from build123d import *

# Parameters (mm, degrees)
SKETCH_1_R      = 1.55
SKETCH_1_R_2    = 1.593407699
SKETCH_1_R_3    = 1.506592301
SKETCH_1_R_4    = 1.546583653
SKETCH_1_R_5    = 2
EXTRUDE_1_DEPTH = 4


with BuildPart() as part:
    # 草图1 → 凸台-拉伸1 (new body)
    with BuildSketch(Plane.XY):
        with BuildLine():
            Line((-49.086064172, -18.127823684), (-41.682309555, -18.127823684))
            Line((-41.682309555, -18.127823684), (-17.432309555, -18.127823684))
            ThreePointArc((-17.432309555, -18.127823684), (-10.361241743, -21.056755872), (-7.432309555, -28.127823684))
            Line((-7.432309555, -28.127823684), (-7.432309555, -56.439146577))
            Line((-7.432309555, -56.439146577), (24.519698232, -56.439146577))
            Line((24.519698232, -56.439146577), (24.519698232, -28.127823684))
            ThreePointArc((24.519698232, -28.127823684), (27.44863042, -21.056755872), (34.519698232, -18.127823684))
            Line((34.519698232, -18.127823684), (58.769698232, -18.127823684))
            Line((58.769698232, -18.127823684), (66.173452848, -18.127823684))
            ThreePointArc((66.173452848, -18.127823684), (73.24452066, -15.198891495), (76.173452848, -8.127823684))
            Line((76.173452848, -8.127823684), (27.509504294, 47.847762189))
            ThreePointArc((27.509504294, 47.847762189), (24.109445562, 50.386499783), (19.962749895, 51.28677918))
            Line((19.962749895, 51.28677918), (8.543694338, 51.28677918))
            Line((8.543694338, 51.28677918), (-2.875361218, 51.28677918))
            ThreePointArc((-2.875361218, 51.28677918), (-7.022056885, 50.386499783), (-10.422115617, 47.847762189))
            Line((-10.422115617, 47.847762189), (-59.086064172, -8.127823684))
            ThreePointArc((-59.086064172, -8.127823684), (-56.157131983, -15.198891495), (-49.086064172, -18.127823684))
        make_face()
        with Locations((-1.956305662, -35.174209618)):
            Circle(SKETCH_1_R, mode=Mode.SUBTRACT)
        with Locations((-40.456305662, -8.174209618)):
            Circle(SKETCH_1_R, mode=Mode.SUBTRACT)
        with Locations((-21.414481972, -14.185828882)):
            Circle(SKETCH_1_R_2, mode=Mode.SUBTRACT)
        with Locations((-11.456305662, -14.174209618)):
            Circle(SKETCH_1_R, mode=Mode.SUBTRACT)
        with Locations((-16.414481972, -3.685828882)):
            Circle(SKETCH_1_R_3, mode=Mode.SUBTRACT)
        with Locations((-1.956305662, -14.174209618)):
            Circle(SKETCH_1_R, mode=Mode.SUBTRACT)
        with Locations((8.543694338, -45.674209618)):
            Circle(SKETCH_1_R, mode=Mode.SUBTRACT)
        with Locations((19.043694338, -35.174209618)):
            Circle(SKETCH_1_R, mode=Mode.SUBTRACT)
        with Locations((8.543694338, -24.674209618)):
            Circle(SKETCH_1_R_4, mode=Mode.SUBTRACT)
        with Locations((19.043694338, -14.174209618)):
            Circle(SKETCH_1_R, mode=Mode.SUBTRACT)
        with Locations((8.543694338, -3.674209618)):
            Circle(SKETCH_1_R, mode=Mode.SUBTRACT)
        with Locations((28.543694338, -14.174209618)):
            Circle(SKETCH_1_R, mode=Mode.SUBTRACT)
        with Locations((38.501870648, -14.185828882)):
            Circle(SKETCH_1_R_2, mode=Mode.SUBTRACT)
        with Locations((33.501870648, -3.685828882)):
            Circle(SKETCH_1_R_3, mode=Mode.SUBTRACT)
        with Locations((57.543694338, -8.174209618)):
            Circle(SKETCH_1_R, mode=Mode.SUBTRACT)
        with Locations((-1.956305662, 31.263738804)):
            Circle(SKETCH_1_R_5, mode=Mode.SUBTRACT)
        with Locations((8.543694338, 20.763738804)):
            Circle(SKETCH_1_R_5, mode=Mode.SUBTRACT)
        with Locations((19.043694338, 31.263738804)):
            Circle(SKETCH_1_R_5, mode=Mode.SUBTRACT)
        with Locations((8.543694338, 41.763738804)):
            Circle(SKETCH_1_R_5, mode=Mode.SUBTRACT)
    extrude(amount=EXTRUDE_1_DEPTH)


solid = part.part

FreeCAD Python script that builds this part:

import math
import FreeCAD as App
import Part
import Sketcher

V = App.Vector

doc = App.newDocument("Part")
body = doc.addObject("PartDesign::Body", "Body")

sketch1 = body.newObject("Sketcher::SketchObject", "Sketch")
sketch1.AttachmentSupport = (doc.getObject("XY_Plane"), [""])
sketch1.MapMode = "FlatFace"
sketch1.addGeometry(Part.LineSegment(V(-49.1, -18.1, 0), V(-17.4, -18.1, 0)), False)
sketch1.addGeometry(Part.ArcOfCircle(Part.Circle(V(-17.4, -28.1, 0), V(0, 0, 1), 10), math.radians(0), math.radians(90)), False)
sketch1.addGeometry(Part.LineSegment(V(-7.4, -28.1, 0), V(-7.4, -56.4, 0)), False)
sketch1.addGeometry(Part.LineSegment(V(-7.4, -56.4, 0), V(24.5, -56.4, 0)), False)
sketch1.addGeometry(Part.LineSegment(V(24.5, -56.4, 0), V(24.5, -28.1, 0)), False)
sketch1.addGeometry(Part.ArcOfCircle(Part.Circle(V(34.5, -28.1, 0), V(0, 0, 1), 10), math.radians(90), math.radians(180)), False)
sketch1.addGeometry(Part.LineSegment(V(34.5, -18.1, 0), V(66.2, -18.1, 0)), False)
sketch1.addGeometry(Part.ArcOfCircle(Part.Circle(V(66.2, -8.1, 0), V(0, 0, 1), 10), math.radians(-90), math.radians(0)), False)
sketch1.addGeometry(Part.LineSegment(V(76.2, -8.1, 0), V(27.5, 47.8, 0)), False)
sketch1.addGeometry(Part.ArcOfCircle(Part.Circle(V(20, 41.3, 0), V(0, 0, 1), 10), math.radians(41), math.radians(90)), False)
sketch1.addGeometry(Part.LineSegment(V(20, 51.3, 0), V(-2.9, 51.3, 0)), False)
sketch1.addGeometry(Part.ArcOfCircle(Part.Circle(V(-2.9, 41.3, 0), V(0, 0, 1), 10), math.radians(90), math.radians(139)), False)
sketch1.addGeometry(Part.LineSegment(V(-10.4, 47.8, 0), V(-59.1, -8.1, 0)), False)
sketch1.addGeometry(Part.ArcOfCircle(Part.Circle(V(-49.1, -8.1, 0), V(0, 0, 1), 10), math.radians(-180), math.radians(-90)), False)
sketch1.addGeometry(Part.Circle(V(-2, -35.2, 0), V(0, 0, 1), 1.6), False)
sketch1.addGeometry(Part.Circle(V(-21.4, -14.2, 0), V(0, 0, 1), 1.6), False)
sketch1.addGeometry(Part.Circle(V(-40.5, -8.2, 0), V(0, 0, 1), 1.6), False)
sketch1.addGeometry(Part.Circle(V(-11.5, -14.2, 0), V(0, 0, 1), 1.6), False)
sketch1.addGeometry(Part.Circle(V(-2, -14.2, 0), V(0, 0, 1), 1.6), False)
sketch1.addGeometry(Part.Circle(V(-16.4, -3.7, 0), V(0, 0, 1), 1.5), False)
sketch1.addGeometry(Part.Circle(V(8.5, -45.7, 0), V(0, 0, 1), 1.6), False)
sketch1.addGeometry(Part.Circle(V(19, -35.2, 0), V(0, 0, 1), 1.6), False)
sketch1.addGeometry(Part.Circle(V(8.5, -24.7, 0), V(0, 0, 1), 1.5), False)
sketch1.addGeometry(Part.Circle(V(19, -14.2, 0), V(0, 0, 1), 1.6), False)
sketch1.addGeometry(Part.Circle(V(28.5, -14.2, 0), V(0, 0, 1), 1.6), False)
sketch1.addGeometry(Part.Circle(V(8.5, -3.7, 0), V(0, 0, 1), 1.6), False)
sketch1.addGeometry(Part.Circle(V(33.5, -3.7, 0), V(0, 0, 1), 1.5), False)
sketch1.addGeometry(Part.Circle(V(38.5, -14.2, 0), V(0, 0, 1), 1.6), False)
sketch1.addGeometry(Part.Circle(V(57.5, -8.2, 0), V(0, 0, 1), 1.6), False)
sketch1.addGeometry(Part.Circle(V(-2, 31.3, 0), V(0, 0, 1), 2), False)
sketch1.addGeometry(Part.Circle(V(8.5, 20.8, 0), V(0, 0, 1), 2), False)
sketch1.addGeometry(Part.Circle(V(19, 31.3, 0), V(0, 0, 1), 2), False)
sketch1.addGeometry(Part.Circle(V(8.5, 41.8, 0), V(0, 0, 1), 2), False)
sketch1.addConstraint(Sketcher.Constraint("Tangent", 0, 2, 1, 2))
sketch1.addConstraint(Sketcher.Constraint("Tangent", 1, 1, 2, 1))
sketch1.addConstraint(Sketcher.Constraint("Coincident", 2, 2, 3, 1))
sketch1.addConstraint(Sketcher.Constraint("Coincident", 3, 2, 4, 1))
sketch1.addConstraint(Sketcher.Constraint("Tangent", 4, 2, 5, 2))
sketch1.addConstraint(Sketcher.Constraint("Tangent", 5, 1, 6, 1))
sketch1.addConstraint(Sketcher.Constraint("Tangent", 6, 2, 7, 1))
sketch1.addConstraint(Sketcher.Constraint("Coincident", 7, 2, 8, 1))
sketch1.addConstraint(Sketcher.Constraint("Tangent", 8, 2, 9, 1))
sketch1.addConstraint(Sketcher.Constraint("Tangent", 9, 2, 10, 1))
sketch1.addConstraint(Sketcher.Constraint("Tangent", 10, 2, 11, 1))
sketch1.addConstraint(Sketcher.Constraint("Tangent", 11, 2, 12, 1))
sketch1.addConstraint(Sketcher.Constraint("Coincident", 12, 2, 13, 1))
sketch1.addConstraint(Sketcher.Constraint("Tangent", 13, 2, 0, 1))
sketch1.addConstraint(Sketcher.Constraint("Horizontal", 0))
sketch1.addConstraint(Sketcher.Constraint("Vertical", 2))
sketch1.addConstraint(Sketcher.Constraint("Horizontal", 3))
sketch1.addConstraint(Sketcher.Constraint("Vertical", 4))
sketch1.addConstraint(Sketcher.Constraint("Horizontal", 6))
sketch1.addConstraint(Sketcher.Constraint("Horizontal", 10))
sketch1.addConstraint(Sketcher.Constraint("Equal", 1, 5))
sketch1.addConstraint(Sketcher.Constraint("Equal", 5, 7))
sketch1.addConstraint(Sketcher.Constraint("Equal", 7, 9))
sketch1.addConstraint(Sketcher.Constraint("Equal", 9, 11))
sketch1.addConstraint(Sketcher.Constraint("Equal", 11, 13))
sketch1.addConstraint(Sketcher.Constraint("Equal", 14, 16))
sketch1.addConstraint(Sketcher.Constraint("Equal", 16, 17))
sketch1.addConstraint(Sketcher.Constraint("Equal", 17, 18))
sketch1.addConstraint(Sketcher.Constraint("Equal", 18, 20))
sketch1.addConstraint(Sketcher.Constraint("Equal", 20, 21))
sketch1.addConstraint(Sketcher.Constraint("Equal", 21, 23))
sketch1.addConstraint(Sketcher.Constraint("Equal", 23, 24))
sketch1.addConstraint(Sketcher.Constraint("Equal", 24, 25))
sketch1.addConstraint(Sketcher.Constraint("Equal", 19, 26))
sketch1.addConstraint(Sketcher.Constraint("Equal", 15, 27))
sketch1.addConstraint(Sketcher.Constraint("Equal", 25, 28))
sketch1.addConstraint(Sketcher.Constraint("Equal", 29, 30))
sketch1.addConstraint(Sketcher.Constraint("Equal", 30, 31))
sketch1.addConstraint(Sketcher.Constraint("Equal", 31, 32))
sketch1.addConstraint(Sketcher.Constraint("Horizontal", 1, 3, 5, 3))
sketch1.addConstraint(Sketcher.Constraint("Horizontal", 17, 3, 18, 3))
sketch1.addConstraint(Sketcher.Constraint("Horizontal", 14, 3, 21, 3))
sketch1.addConstraint(Sketcher.Constraint("Horizontal", 18, 3, 23, 3))
sketch1.addConstraint(Sketcher.Constraint("Horizontal", 23, 3, 24, 3))
sketch1.addConstraint(Sketcher.Constraint("Horizontal", 19, 3, 26, 3))
sketch1.addConstraint(Sketcher.Constraint("Horizontal", 15, 3, 27, 3))
sketch1.addConstraint(Sketcher.Constraint("Horizontal", 16, 3, 28, 3))
sketch1.addConstraint(Sketcher.Constraint("Horizontal", 29, 3, 31, 3))
sketch1.addConstraint(Sketcher.Constraint("Horizontal", 13, 3, 7, 2))
sketch1.addConstraint(Sketcher.Constraint("Horizontal", 8, 2, 11, 2))
sketch1.addConstraint(Sketcher.Constraint("Horizontal", 7, 2, 12, 2))
sketch1.addConstraint(Sketcher.Constraint("Vertical", 14, 3, 18, 3))
sketch1.addConstraint(Sketcher.Constraint("Vertical", 20, 3, 22, 3))
sketch1.addConstraint(Sketcher.Constraint("Vertical", 21, 3, 23, 3))
sketch1.addConstraint(Sketcher.Constraint("Vertical", 22, 3, 25, 3))
sketch1.addConstraint(Sketcher.Constraint("Vertical", 18, 3, 29, 3))
sketch1.addConstraint(Sketcher.Constraint("Vertical", 25, 3, 30, 3))
sketch1.addConstraint(Sketcher.Constraint("Vertical", 23, 3, 31, 3))
sketch1.addConstraint(Sketcher.Constraint("Vertical", 30, 3, 32, 3))
sketch1.addConstraint(Sketcher.Constraint("Equal", 0, 6))
sketch1.addConstraint(Sketcher.Constraint("Diameter", 29, 4.0))
sketch1.addConstraint(Sketcher.Constraint("Radius", 1, 10.0))
sketch1.addConstraint(Sketcher.Constraint("Diameter", 14, 3.1))
sketch1.addConstraint(Sketcher.Constraint("DistanceY", 14, 3, 16, 3, 27.0))
sketch1.addConstraint(Sketcher.Constraint("DistanceY", 14, 3, 17, 3, 21.0))
sketch1.addConstraint(Sketcher.Constraint("DistanceX", 16, 3, 17, 3, 29.0))
sketch1.addConstraint(Sketcher.Constraint("DistanceX", 15, 3, 19, 3, 5.0))
sketch1.addConstraint(Sketcher.Constraint("DistanceX", 17, 3, 20, 3, 20.0))
sketch1.addConstraint(Sketcher.Constraint("DistanceX", 14, 3, 21, 3, 21.0))
sketch1.addConstraint(Sketcher.Constraint("DistanceY", 20, 3, 22, 3, 21.0))
sketch1.addConstraint(Sketcher.Constraint("DistanceX", 22, 3, 24, 3, 20.0))
sketch1.addConstraint(Sketcher.Constraint("DistanceY", 22, 3, 25, 3, 21.0))
sketch1.addConstraint(Sketcher.Constraint("DistanceX", 26, 3, 27, 3, 5.0))
sketch1.addConstraint(Sketcher.Constraint("DistanceX", 24, 3, 28, 3, 29.0))
sketch1.addConstraint(Sketcher.Constraint("DistanceY", 30, 3, 32, 3, 21.0))
sketch1.addConstraint(Sketcher.Constraint("DistanceX", 16, 3, 14, 3, 38.5))
sketch1.addConstraint(Sketcher.Constraint("DistanceY", 15, 3, 19, 3, 10.5))
sketch1.addConstraint(Sketcher.Constraint("DistanceY", 20, 3, 14, 3, 10.5))
sketch1.addConstraint(Sketcher.Constraint("DistanceY", 30, 3, 29, 3, 10.5))
sketch1.addConstraint(Sketcher.Constraint("Diameter", 15, 3.186815))
sketch1.addConstraint(Sketcher.Constraint("Diameter", 19, 3.013185))
sketch1.addConstraint(Sketcher.Constraint("Diameter", 22, 3.093167))
sketch1.addConstraint(Sketcher.Constraint("DistanceX", 10, 2, 10, 1, 22.838111))
sketch1.addConstraint(Sketcher.Constraint("DistanceX", -1, 1, 5, 3, 34.519698))
sketch1.addConstraint(Sketcher.Constraint("DistanceX", 0, 1, 0, 2, 31.653755))
sketch1.addConstraint(Sketcher.Constraint("DistanceX", 3, 1, 3, 2, 31.952008))
sketch1.addConstraint(Sketcher.Constraint("DistanceY", 2, 2, 2, 1, 28.311323))
sketch1.addConstraint(Sketcher.Constraint("DistanceY", -1, 1, 9, 3, 41.286779))
sketch1.addConstraint(Sketcher.Constraint("DistanceY", 14, 3, -1, 1, 35.17421))
sketch1.addConstraint(Sketcher.Constraint("DistanceX", 15, 3, -1, 1, 21.414482))
sketch1.addConstraint(Sketcher.Constraint("DistanceY", 15, 3, -1, 1, 14.185829))
sketch1.addConstraint(Sketcher.Constraint("DistanceX", -1, 1, 26, 3, 33.501871))
sketch1.addConstraint(Sketcher.Constraint("DistanceY", -1, 1, 29, 3, 31.263739))
sketch1.addConstraint(Sketcher.Constraint("DistanceX", 13, 3, 14, 3, 47.129759))
sketch1.addConstraint(Sketcher.Constraint("DistanceX", 31, 3, 8, 2, 8.46581))
pad1 = body.newObject("PartDesign::Pad", "Pad")
pad1.Profile = sketch1
pad1.Length = 4

doc.recompute()
